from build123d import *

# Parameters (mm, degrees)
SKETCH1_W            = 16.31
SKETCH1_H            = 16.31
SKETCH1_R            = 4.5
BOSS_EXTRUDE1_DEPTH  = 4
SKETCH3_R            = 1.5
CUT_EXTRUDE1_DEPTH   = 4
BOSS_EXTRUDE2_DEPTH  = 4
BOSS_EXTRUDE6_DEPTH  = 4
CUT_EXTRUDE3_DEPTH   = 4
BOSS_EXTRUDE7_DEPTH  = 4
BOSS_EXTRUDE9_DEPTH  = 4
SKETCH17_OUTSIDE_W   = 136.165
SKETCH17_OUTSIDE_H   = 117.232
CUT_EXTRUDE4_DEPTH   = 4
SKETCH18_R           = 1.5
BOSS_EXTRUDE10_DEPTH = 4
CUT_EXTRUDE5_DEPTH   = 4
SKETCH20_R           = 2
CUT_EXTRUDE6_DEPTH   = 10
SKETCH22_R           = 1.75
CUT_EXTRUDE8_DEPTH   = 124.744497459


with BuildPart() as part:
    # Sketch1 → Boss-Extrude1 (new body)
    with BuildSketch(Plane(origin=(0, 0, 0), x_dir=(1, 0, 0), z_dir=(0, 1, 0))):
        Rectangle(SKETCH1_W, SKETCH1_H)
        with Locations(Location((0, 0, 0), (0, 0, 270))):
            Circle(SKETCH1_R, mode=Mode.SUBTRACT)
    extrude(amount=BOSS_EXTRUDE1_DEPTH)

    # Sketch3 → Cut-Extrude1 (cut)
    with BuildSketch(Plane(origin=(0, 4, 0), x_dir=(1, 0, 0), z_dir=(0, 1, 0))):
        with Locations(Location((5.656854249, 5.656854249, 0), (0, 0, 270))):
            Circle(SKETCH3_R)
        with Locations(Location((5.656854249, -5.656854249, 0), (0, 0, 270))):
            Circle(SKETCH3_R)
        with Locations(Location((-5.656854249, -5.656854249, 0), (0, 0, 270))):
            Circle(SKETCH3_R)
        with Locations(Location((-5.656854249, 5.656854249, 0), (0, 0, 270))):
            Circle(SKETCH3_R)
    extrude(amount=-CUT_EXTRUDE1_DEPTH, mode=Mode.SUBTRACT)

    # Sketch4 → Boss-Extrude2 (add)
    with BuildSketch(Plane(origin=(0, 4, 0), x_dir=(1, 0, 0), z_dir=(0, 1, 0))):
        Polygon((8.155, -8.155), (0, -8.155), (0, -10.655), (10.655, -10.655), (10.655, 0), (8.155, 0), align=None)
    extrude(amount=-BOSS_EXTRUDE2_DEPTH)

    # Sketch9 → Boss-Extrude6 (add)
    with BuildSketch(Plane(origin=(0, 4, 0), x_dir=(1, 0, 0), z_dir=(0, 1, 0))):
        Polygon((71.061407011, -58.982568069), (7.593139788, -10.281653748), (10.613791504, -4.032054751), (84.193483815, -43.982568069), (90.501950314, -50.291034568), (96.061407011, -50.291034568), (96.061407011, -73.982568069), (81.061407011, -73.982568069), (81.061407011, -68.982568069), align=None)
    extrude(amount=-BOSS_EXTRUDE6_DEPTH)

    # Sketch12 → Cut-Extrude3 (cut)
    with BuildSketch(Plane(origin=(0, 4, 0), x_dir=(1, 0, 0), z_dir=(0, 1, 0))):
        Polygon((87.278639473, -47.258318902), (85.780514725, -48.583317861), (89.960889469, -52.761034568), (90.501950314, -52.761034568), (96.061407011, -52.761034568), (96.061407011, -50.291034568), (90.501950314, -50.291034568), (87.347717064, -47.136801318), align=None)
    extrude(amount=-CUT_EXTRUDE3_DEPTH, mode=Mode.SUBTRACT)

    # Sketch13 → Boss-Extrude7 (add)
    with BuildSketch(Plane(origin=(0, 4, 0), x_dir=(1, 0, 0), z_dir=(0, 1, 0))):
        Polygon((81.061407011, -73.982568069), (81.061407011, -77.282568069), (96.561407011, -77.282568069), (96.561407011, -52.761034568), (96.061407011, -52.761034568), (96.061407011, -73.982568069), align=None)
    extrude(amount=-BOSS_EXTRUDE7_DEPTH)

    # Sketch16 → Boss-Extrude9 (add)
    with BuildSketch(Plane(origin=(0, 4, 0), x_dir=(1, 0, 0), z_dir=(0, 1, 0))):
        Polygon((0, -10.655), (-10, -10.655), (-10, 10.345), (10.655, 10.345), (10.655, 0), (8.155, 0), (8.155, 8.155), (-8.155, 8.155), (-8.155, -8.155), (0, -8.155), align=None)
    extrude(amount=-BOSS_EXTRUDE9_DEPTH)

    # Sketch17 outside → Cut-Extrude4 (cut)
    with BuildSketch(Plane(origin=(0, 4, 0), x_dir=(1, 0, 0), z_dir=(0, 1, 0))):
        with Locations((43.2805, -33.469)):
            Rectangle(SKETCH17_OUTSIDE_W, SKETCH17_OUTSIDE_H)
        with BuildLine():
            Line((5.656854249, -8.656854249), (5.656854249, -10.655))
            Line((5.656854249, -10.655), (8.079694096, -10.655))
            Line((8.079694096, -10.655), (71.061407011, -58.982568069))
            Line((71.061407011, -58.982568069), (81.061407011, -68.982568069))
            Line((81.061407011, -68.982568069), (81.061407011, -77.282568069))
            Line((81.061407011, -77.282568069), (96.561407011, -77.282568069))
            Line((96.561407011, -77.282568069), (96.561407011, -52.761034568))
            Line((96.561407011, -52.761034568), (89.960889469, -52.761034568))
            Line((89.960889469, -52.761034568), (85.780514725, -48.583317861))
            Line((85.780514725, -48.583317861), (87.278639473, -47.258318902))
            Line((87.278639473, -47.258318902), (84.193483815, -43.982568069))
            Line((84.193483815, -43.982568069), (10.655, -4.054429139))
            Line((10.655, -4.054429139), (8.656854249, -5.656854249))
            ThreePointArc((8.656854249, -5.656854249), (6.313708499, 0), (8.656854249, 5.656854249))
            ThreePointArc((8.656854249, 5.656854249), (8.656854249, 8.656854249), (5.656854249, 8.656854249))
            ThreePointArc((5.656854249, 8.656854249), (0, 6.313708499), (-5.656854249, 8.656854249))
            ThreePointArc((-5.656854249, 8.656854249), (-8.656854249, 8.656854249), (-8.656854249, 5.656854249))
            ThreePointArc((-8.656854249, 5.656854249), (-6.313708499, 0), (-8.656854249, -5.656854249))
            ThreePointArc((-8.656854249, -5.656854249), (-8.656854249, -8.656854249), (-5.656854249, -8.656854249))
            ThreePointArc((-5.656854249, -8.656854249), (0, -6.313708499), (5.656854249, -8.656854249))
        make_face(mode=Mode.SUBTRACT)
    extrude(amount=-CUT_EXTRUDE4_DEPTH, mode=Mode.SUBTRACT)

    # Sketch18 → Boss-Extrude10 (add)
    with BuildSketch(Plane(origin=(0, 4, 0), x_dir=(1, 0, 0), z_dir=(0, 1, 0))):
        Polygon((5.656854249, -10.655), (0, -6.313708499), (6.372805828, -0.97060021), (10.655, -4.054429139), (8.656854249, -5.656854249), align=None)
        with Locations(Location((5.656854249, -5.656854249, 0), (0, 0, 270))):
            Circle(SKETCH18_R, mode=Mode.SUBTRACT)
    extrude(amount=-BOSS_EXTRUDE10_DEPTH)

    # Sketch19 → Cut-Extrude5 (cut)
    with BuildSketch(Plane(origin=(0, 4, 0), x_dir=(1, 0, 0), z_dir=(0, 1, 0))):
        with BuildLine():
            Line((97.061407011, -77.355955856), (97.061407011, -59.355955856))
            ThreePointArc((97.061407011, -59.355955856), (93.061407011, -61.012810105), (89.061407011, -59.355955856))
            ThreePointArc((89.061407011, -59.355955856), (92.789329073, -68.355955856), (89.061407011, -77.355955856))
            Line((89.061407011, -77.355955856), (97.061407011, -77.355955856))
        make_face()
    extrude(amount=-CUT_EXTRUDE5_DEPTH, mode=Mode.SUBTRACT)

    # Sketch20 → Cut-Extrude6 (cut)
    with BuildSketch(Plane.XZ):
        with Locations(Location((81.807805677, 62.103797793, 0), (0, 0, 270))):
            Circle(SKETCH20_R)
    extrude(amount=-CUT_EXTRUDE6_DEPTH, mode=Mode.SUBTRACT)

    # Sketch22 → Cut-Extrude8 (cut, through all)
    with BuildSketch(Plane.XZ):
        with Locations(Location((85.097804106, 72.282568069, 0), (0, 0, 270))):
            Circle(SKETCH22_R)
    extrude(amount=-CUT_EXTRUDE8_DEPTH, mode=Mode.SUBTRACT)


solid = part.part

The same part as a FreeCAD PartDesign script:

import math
import FreeCAD as App
import Part
import Sketcher

V = App.Vector
Q = App.Units.Quantity


def add_polygon(sketch, points):
    """Adds a closed chain of lines whose ends are joined by coincident constraints."""
    first, n = sketch.GeometryCount, len(points)
    for a, b in zip(points, points[1:] + points[:1]):
        sketch.addGeometry(Part.LineSegment(App.Vector(*a, 0), App.Vector(*b, 0)), False)
    for i in range(n):
        sketch.addConstraint(Sketcher.Constraint("Coincident", first + i, 2, first + (i + 1) % n, 1))

doc = App.newDocument("Part")
body = doc.addObject("PartDesign::Body", "Body")

sketch1 = body.newObject("Sketcher::SketchObject", "Sketch")
sketch1.AttachmentSupport = (doc.getObject("XZ_Plane"), [""])
sketch1.MapMode = "FlatFace"
add_polygon(sketch1, [(-8.155, -8.155), (-8.155, 8.155), (8.155, 8.155), (8.155, -8.155)])
sketch1.addGeometry(Part.Circle(V(0, 0, 0), V(0, 0, 1), 4.5), False)
sketch1.addConstraint([
    Sketcher.Constraint("Vertical", 0),
    Sketcher.Constraint("Horizontal", 1),
    Sketcher.Constraint("Vertical", 2),
    Sketcher.Constraint("Horizontal", 3),
    Sketcher.Constraint("Coincident", 4, 3, -1, 1),
    Sketcher.Constraint("Symmetric", 0, 2, 2, 2, -1, 1),
    Sketcher.Constraint("Equal", 3, 0),
    Sketcher.Constraint("Diameter", 4, Q("9 mm")),
    Sketcher.Constraint("DistanceX", 1, 1, 1, 2, Q("16.31 mm")),
])
pad1 = body.newObject("PartDesign::Pad", "Pad")
pad1.Profile = sketch1
pad1.Length = 4
pad1.Reversed = True

sketch2 = body.newObject("Sketcher::SketchObject", "Sketch001")
sketch2.AttachmentSupport = (doc.getObject("XZ_Plane"), [""])
sketch2.MapMode = "FlatFace"
sketch2.AttachmentOffset = App.Placement(V(0, 0, -4), App.Rotation())
sketch2.addGeometry([
    Part.Circle(V(5.656854, -5.656854, 0), V(0, 0, 1), 1.5),
    Part.Circle(V(5.656854, 5.656854, 0), V(0, 0, 1), 1.5),
    Part.Circle(V(-5.656854, 5.656854, 0), V(0, 0, 1), 1.5),
    Part.Circle(V(-5.656854, -5.656854, 0), V(0, 0, 1), 1.5),
], False)
sketch2.addConstraint([
    Sketcher.Constraint("Equal", 0, 1),
    Sketcher.Constraint("Equal", 1, 2),
    Sketcher.Constraint("Equal", 2, 3),
    Sketcher.Constraint("Symmetric", 0, 3, 2, 3, -1, 1),
    Sketcher.Constraint("Symmetric", 1, 3, 3, 3, -1, 1),
    Sketcher.Constraint("Symmetric", 1, 3, 2, 3, -2),
    Sketcher.Constraint("Diameter", 0, Q("3 mm")),
    Sketcher.Constraint("DistanceY", 0, 3, 1, 3, Q("11.313708 mm")),
    Sketcher.Constraint("DistanceX", 2, 3, 1, 3, Q("11.313708 mm")),
])
pocket1 = body.newObject("PartDesign::Pocket", "Pocket")
pocket1.Profile = sketch2
pocket1.Length = 4
pocket1.Reversed = True

sketch3 = body.newObject("Sketcher::SketchObject", "Sketch002")
sketch3.AttachmentSupport = (doc.getObject("XZ_Plane"), [""])
sketch3.MapMode = "FlatFace"
sketch3.AttachmentOffset = App.Placement(V(0, 0, -4), App.Rotation())
add_polygon(sketch3, [(8.155, 8.155), (0, 8.155), (0, 10.655), (10.655, 10.655), (10.655, 0), (8.155, 0)])
sketch3.addConstraint([
    Sketcher.Constraint("Horizontal", 0),
    Sketcher.Constraint("Vertical", 1),
    Sketcher.Constraint("Horizontal", 2),
    Sketcher.Constraint("Vertical", 3),
    Sketcher.Constraint("Horizontal", 4),
    Sketcher.Constraint("Vertical", 5),
    Sketcher.Constraint("PointOnObject", 0, 2, -2),
    Sketcher.Constraint("PointOnObject", 3, 2, -1),
    Sketcher.Constraint("Equal", 4, 1),
    Sketcher.Constraint("Equal", 2, 3),
    Sketcher.Constraint("DistanceX", 4, 2, 4, 1, Q("2.5 mm")),
    Sketcher.Constraint("DistanceX", 0, 2, 0, 1, Q("8.155 mm")),
])
pad2 = body.newObject("PartDesign::Pad", "Pad001")
pad2.Profile = sketch3
pad2.Length = 4

sketch4 = body.newObject("Sketcher::SketchObject", "Sketch003")
sketch4.AttachmentSupport = (doc.getObject("XZ_Plane"), [""])
sketch4.MapMode = "FlatFace"
sketch4.AttachmentOffset = App.Placement(V(0, 0, -4), App.Rotation())
add_polygon(sketch4, [(7.59314, 10.281654), (71.061407, 58.982568), (81.061407, 68.982568), (81.061407, 73.982568), (96.061407, 73.982568), (96.061407, 50.291035), (90.50195, 50.291035), (84.193484, 43.982568), (10.613792, 4.032055)])
sketch4.addConstraint([
    Sketcher.Constraint("Vertical", 2),
    Sketcher.Constraint("Horizontal", 3),
    Sketcher.Constraint("Vertical", 4),
    Sketcher.Constraint("Horizontal", 5),
    Sketcher.Constraint("Parallel", 1, 6),
    Sketcher.Constraint("DistanceX", 3, 1, 3, 2, Q("15 mm")),
    Sketcher.Constraint("DistanceY", 2, 1, 2, 2, Q("5 mm")),
    Sketcher.Constraint("Angle", 1, Q("45 deg")),
    Sketcher.Constraint("Distance", 0, Q("80 mm")),
    Sketcher.Constraint("Angle", 0, Q("37.5 deg")),
    Sketcher.Constraint("Angle", 7, Q("-151.5 deg")),
    Sketcher.Constraint("DistanceX", 0, 2, 1, 2, Q("10 mm")),
    Sketcher.Constraint("DistanceY", 6, 2, 0, 2, Q("15 mm")),
    Sketcher.Constraint("DistanceY", 7, 2, 8, 2, Q("6.249599 mm")),
    Sketcher.Constraint("Distance", 6, Q("8.921519 mm")),
    Sketcher.Constraint("DistanceX", 5, 2, 5, 1, Q("5.559457 mm")),
    Sketcher.Constraint("DistanceY", -1, 1, 0, 2, Q("58.982568 mm")),
    Sketcher.Constraint("DistanceX", -1, 1, 5, 2, Q("90.50195 mm")),
])
pad3 = body.newObject("PartDesign::Pad", "Pad002")
pad3.Profile = sketch4
pad3.Length = 4

sketch5 = body.newObject("Sketcher::SketchObject", "Sketch004")
sketch5.AttachmentSupport = (doc.getObject("XZ_Plane"), [""])
sketch5.MapMode = "FlatFace"
sketch5.AttachmentOffset = App.Placement(V(0, 0, -4), App.Rotation())
add_polygon(sketch5, [(87.278639, 47.258319), (85.780515, 48.583318), (89.960889, 52.761035), (96.061407, 52.761035), (96.061407, 50.291035), (90.50195, 50.291035), (87.347717, 47.136801)])
sketch5.addConstraint([
    Sketcher.Constraint("Horizontal", 2),
    Sketcher.Constraint("Vertical", 3),
    Sketcher.Constraint("Horizontal", 4),
    Sketcher.Constraint("Angle", 5, Q("-135 deg")),
    Sketcher.Constraint("Distance", 0, Q("2 mm")),
    Sketcher.Constraint("DistanceY", 3, 2, 3, 1, Q("2.47 mm")),
    Sketcher.Constraint("DistanceY", 6, 2, 0, 2, Q("1.324999 mm")),
    Sketcher.Constraint("DistanceY", -1, 1, 5, 2, Q("47.136801 mm")),
    Sketcher.Constraint("Distance", 5, Q("4.460759 mm")),
    Sketcher.Constraint("Distance", 6, Q("0.139779 mm")),
    Sketcher.Constraint("DistanceX", 2, 1, 2, 2, Q("6.100518 mm")),
    Sketcher.Constraint("DistanceX", 4, 2, 4, 1, Q("5.559457 mm")),
    Sketcher.Constraint("DistanceX", -1, 1, 1, 2, Q("89.960889 mm")),
    Sketcher.Constraint("DistanceX", -1, 1, 6, 2, Q("87.278639 mm")),
])
pocket2 = body.newObject("PartDesign::Pocket", "Pocket001")
pocket2.Profile = sketch5
pocket2.Length = 4
pocket2.Reversed = True

sketch6 = body.newObject("Sketcher::SketchObject", "Sketch005")
sketch6.AttachmentSupport = (doc.getObject("XZ_Plane"), [""])
sketch6.MapMode = "FlatFace"
sketch6.AttachmentOffset = App.Placement(V(0, 0, -4), App.Rotation())
add_polygon(sketch6, [(81.061407, 73.982568), (81.061407, 77.282568), (96.561407, 77.282568), (96.561407, 52.761035), (96.061407, 52.761035), (96.061407, 73.982568)])
sketch6.addConstraint([
    Sketcher.Constraint("Vertical", 0),
    Sketcher.Constraint("Horizontal", 1),
    Sketcher.Constraint("Vertical", 2),
    Sketcher.Constraint("Horizontal", 3),
    Sketcher.Constraint("Vertical", 4),
    Sketcher.Constraint("Horizontal", 5),
    Sketcher.Constraint("DistanceX", 5, 2, 5, 1, Q("15 mm")),
    Sketcher.Constraint("DistanceX", 1, 1, 1, 2, Q("15.5 mm")),
    Sketcher.Constraint("DistanceY", 0, 1, 0, 2, Q("3.3 mm")),
    Sketcher.Constraint("DistanceY", 2, 2, 2, 1, Q("24.521534 mm")),
    Sketcher.Constraint("DistanceY", -1, 1, 0, 2, Q("77.282568 mm")),
    Sketcher.Constraint("DistanceX", -1, 1, 0, 2, Q("81.061407 mm")),
])
pad4 = body.newObject("PartDesign::Pad", "Pad003")
pad4.Profile = sketch6
pad4.Length = 4

sketch7 = body.newObject("Sketcher::SketchObject", "Sketch006")
sketch7.AttachmentSupport = (doc.getObject("XZ_Plane"), [""])
sketch7.MapMode = "FlatFace"
sketch7.AttachmentOffset = App.Placement(V(0, 0, -4), App.Rotation())
add_polygon(sketch7, [(-10, 10.655), (0, 10.655), (0, 8.155), (-8.155, 8.155), (-8.155, -8.155), (8.155, -8.155), (8.155, 0), (10.655, 0), (10.655, -10.345), (-10, -10.345)])
sketch7.addConstraint([
    Sketcher.Constraint("Horizontal", 0),
    Sketcher.Constraint("Vertical", 1),
    Sketcher.Constraint("Horizontal", 2),
    Sketcher.Constraint("Vertical", 3),
    Sketcher.Constraint("Horizontal", 4),
    Sketcher.Constraint("Vertical", 5),
    Sketcher.Constraint("Horizontal", 6),
    Sketcher.Constraint("Vertical", 7),
    Sketcher.Constraint("Horizontal", 8),
    Sketcher.Constraint("Vertical", 9),
    Sketcher.Constraint("Symmetric", 2, 2, 4, 2, -1, 1),
    Sketcher.Constraint("PointOnObject", 0, 2, -2),
    Sketcher.Constraint("PointOnObject", 5, 2, -1),
    Sketcher.Constraint("Equal", 6, 1),
    Sketcher.Constraint("Equal", 4, 3),
    Sketcher.Constraint("DistanceX", 0, 1, 0, 2, Q("10 mm")),
    Sketcher.Constraint("DistanceY", 9, 1, 9, 2, Q("21 mm")),
    Sketcher.Constraint("DistanceX", 6, 1, 6, 2, Q("2.5 mm")),
    Sketcher.Constraint("DistanceX", 4, 1, 4, 2, Q("16.31 mm")),
])
pad5 = body.newObject("PartDesign::Pad", "Pad004")
pad5.Profile = sketch7
pad5.Length = 4

sketch8 = body.newObject("Sketcher::SketchObject", "Sketch007")
sketch8.AttachmentSupport = (doc.getObject("XZ_Plane"), [""])
sketch8.MapMode = "FlatFace"
sketch8.AttachmentOffset = App.Placement(V(0, 0, -4), App.Rotation())
add_polygon(sketch8, [(-24.802, -25.147), (-24.802, 92.085), (111.363, 92.085), (111.363, -25.147)])
sketch8.addGeometry(Part.LineSegment(V(5.656854, 10.655, 0), V(5.656854, 8.656854, 0)), False)
sketch8.addGeometry(Part.ArcOfCircle(Part.Circle(V(0, 14.313708, 0), V(0, 0, 1), 8), math.radians(-135), math.radians(-45)), False)
sketch8.addGeometry(Part.ArcOfCircle(Part.Circle(V(-7.156854, 7.156854, 0), V(0, 0, 1), 2.12132), math.radians(45), math.radians(225)), False)
sketch8.addGeometry(Part.ArcOfCircle(Part.Circle(V(-14.313708, 0, 0), V(0, 0, 1), 8), math.radians(-45), math.radians(45)), False)
sketch8.addGeometry(Part.ArcOfCircle(Part.Circle(V(-7.156854, -7.156854, 0), V(0, 0, 1), 2.12132), math.radians(135), math.radians(315)), False)
sketch8.addGeometry(Part.ArcOfCircle(Part.Circle(V(0, -14.313708, 0), V(0, 0, 1), 8), math.radians(45), math.radians(135)), False)
sketch8.addGeometry(Part.ArcOfCircle(Part.Circle(V(7.156854, -7.156854, 0), V(0, 0, 1), 2.12132), math.radians(-135), math.radians(45)), False)
sketch8.addGeometry(Part.ArcOfCircle(Part.Circle(V(14.313708, 0, 0), V(0, 0, 1), 8), math.radians(135), math.radians(225)), False)
sketch8.addGeometry(Part.LineSegment(V(8.656854, 5.656854, 0), V(10.655, 4.054429, 0)), False)
sketch8.addGeometry(Part.LineSegment(V(10.655, 4.054429, 0), V(84.193484, 43.982568, 0)), False)
sketch8.addGeometry(Part.LineSegment(V(84.193484, 43.982568, 0), V(87.278639, 47.258319, 0)), False)
sketch8.addGeometry(Part.LineSegment(V(87.278639, 47.258319, 0), V(85.780515, 48.583318, 0)), False)
sketch8.addGeometry(Part.LineSegment(V(85.780515, 48.583318, 0), V(89.960889, 52.761035, 0)), False)
sketch8.addGeometry(Part.LineSegment(V(89.960889, 52.761035, 0), V(96.561407, 52.761035, 0)), False)
sketch8.addGeometry(Part.LineSegment(V(96.561407, 52.761035, 0), V(96.561407, 77.282568, 0)), False)
sketch8.addGeometry(Part.LineSegment(V(96.561407, 77.282568, 0), V(81.061407, 77.282568, 0)), False)
sketch8.addGeometry(Part.LineSegment(V(81.061407, 77.282568, 0), V(81.061407, 68.982568, 0)), False)
sketch8.addGeometry(Part.LineSegment(V(81.061407, 68.982568, 0), V(71.061407, 58.982568, 0)), False)
sketch8.addGeometry(Part.LineSegment(V(71.061407, 58.982568, 0), V(8.079694, 10.655, 0)), False)
sketch8.addGeometry(Part.LineSegment(V(8.079694, 10.655, 0), V(5.656854, 10.655, 0)), False)
sketch8.addConstraint([
    Sketcher.Constraint("Coincident", 4, 2, 5, 2),
    Sketcher.Constraint("Tangent", 5, 1, 6, 1),
    Sketcher.Constraint("Tangent", 6, 2, 7, 2),
    Sketcher.Constraint("Tangent", 7, 1, 8, 1),
    Sketcher.Constraint("Tangent", 8, 2, 9, 2),
    Sketcher.Constraint("Tangent", 9, 1, 10, 1),
    Sketcher.Constraint("Tangent", 10, 2, 11, 2),
    Sketcher.Constraint("Coincident", 11, 1, 12, 1),
    Sketcher.Constraint("Coincident", 12, 2, 13, 1),
    Sketcher.Constraint("Coincident", 13, 2, 14, 1),
    Sketcher.Constraint("Coincident", 14, 2, 15, 1),
    Sketcher.Constraint("Coincident", 15, 2, 16, 1),
    Sketcher.Constraint("Coincident", 16, 2, 17, 1),
    Sketcher.Constraint("Coincident", 17, 2, 18, 1),
    Sketcher.Constraint("Coincident", 18, 2, 19, 1),
    Sketcher.Constraint("Coincident", 19, 2, 20, 1),
    Sketcher.Constraint("Coincident", 20, 2, 21, 1),
    Sketcher.Constraint("Coincident", 21, 2, 22, 1),
    Sketcher.Constraint("Coincident", 22, 2, 23, 1),
    Sketcher.Constraint("Coincident", 23, 2, 4, 1),
    Sketcher.Constraint("Vertical", 0),
    Sketcher.Constraint("Horizontal", 1),
    Sketcher.Constraint("Vertical", 2),
    Sketcher.Constraint("Horizontal", 3),
    Sketcher.Constraint("Vertical", 4),
    Sketcher.Constraint("Horizontal", 17),
    Sketcher.Constraint("Vertical", 18),
    Sketcher.Constraint("Horizontal", 19),
    Sketcher.Constraint("Vertical", 20),
    Sketcher.Constraint("Horizontal", 23),
    Sketcher.Constraint("Equal", 5, 7),
    Sketcher.Constraint("Equal", 6, 8),
    Sketcher.Constraint("Equal", 7, 9),
    Sketcher.Constraint("Equal", 8, 10),
    Sketcher.Constraint("Equal", 9, 11),
    Sketcher.Constraint("Symmetric", 5, 3, 9, 3, -1, 1),
    Sketcher.Constraint("Symmetric", 7, 1, 11, 1, -1, 1),
    Sketcher.Constraint("Symmetric", 8, 3, 10, 3, -2),
    Sketcher.Constraint("Horizontal", 4, 2, 5, 1),
    Sketcher.Constraint("Horizontal", 6, 2, 11, 1),
    Sketcher.Constraint("Radius", 5, Q("8 mm")),
    Sketcher.Constraint("Angle", 21, Q("-135 deg")),
    Sketcher.Constraint("Distance", 15, Q("2 mm")),
    Sketcher.Constraint("DistanceX", 19, 2, 19, 1, Q("15.5 mm")),
    Sketcher.Constraint("DistanceY", 20, 2, 20, 1, Q("8.3 mm")),
    Sketcher.Constraint("Angle", 13, Q("28.5 deg")),
    Sketcher.Constraint("Angle", 22, Q("-142.5 deg")),
    Sketcher.Constraint("DistanceX", 6, 2, 5, 1, Q("3 mm")),
    Sketcher.Constraint("DistanceY", 6, 2, 5, 1, Q("3 mm")),
    Sketcher.Constraint("DistanceX", 21, 2, 20, 2, Q("10 mm")),
    Sketcher.Constraint("DistanceY", 13, 2, 21, 2, Q("15 mm")),
    Sketcher.Constraint("DistanceY", 6, 3, 4, 2, Q("1.5 mm")),
    Sketcher.Constraint("DistanceX", 1, 1, 1, 2, Q("136.165 mm")),
    Sketcher.Constraint("DistanceY", 0, 1, 0, 2, Q("117.232 mm")),
    Sketcher.Constraint("DistanceX", 0, 2, -1, 1, Q("24.802 mm")),
    Sketcher.Constraint("DistanceY", -1, 1, 0, 2, Q("92.085 mm")),
    Sketcher.Constraint("DistanceX", -1, 1, 12, 2, Q("10.655 mm")),
    Sketcher.Constraint("DistanceY", -1, 1, 22, 2, Q("10.655 mm")),
    Sketcher.Constraint("DistanceY", 14, 2, 15, 2, Q("1.324999 mm")),
    Sketcher.Constraint("DistanceX", 23, 2, 23, 1, Q("2.42284 mm")),
    Sketcher.Constraint("Distance", 12, Q("2.561319 mm")),
    Sketcher.Constraint("Distance", 13, Q("83.678939 mm")),
    Sketcher.Constraint("Distance", 14, Q("4.499859 mm")),
    Sketcher.Constraint("DistanceX", 17, 1, 17, 2, Q("6.600518 mm")),
    Sketcher.Constraint("DistanceY", 18, 1, 18, 2, Q("24.521534 mm")),
    Sketcher.Constraint("DistanceX", -1, 1, 14, 2, Q("87.278639 mm")),
])
pocket3 = body.newObject("PartDesign::Pocket", "Pocket002")
pocket3.Profile = sketch8
pocket3.Length = 4
pocket3.Reversed = True

sketch9 = body.newObject("Sketcher::SketchObject", "Sketch008")
sketch9.AttachmentSupport = (doc.getObject("XZ_Plane"), [""])
sketch9.MapMode = "FlatFace"
sketch9.AttachmentOffset = App.Placement(V(0, 0, -4), App.Rotation())
add_polygon(sketch9, [(0, 6.313708), (5.656854, 10.655), (8.656854, 5.656854), (10.655, 4.054429), (6.372806, 0.9706)])
sketch9.addGeometry(Part.Circle(V(5.656854, 5.656854, 0), V(0, 0, 1), 1.5), False)
sketch9.addConstraint([
    Sketcher.Constraint("PointOnObject", 4, 2, -2),
    Sketcher.Constraint("Horizontal", 5, 3, 1, 2),
    Sketcher.Constraint("Vertical", 5, 3, 0, 2),
    Sketcher.Constraint("Diameter", 5, Q("3 mm")),
    Sketcher.Constraint("DistanceX", 5, 3, 1, 2, Q("3 mm")),
    Sketcher.Constraint("DistanceY", -1, 1, 0, 2, Q("10.655 mm")),
    Sketcher.Constraint("DistanceX", -1, 1, 2, 2, Q("10.655 mm")),
    Sketcher.Constraint("DistanceY", -1, 1, 3, 2, Q("0.9706 mm")),
    Sketcher.Constraint("Distance", 1, Q("5.829362 mm")),
    Sketcher.Constraint("Distance", 2, Q("2.561319 mm")),
    Sketcher.Constraint("DistanceY", -1, 1, 2, 2, Q("4.054429 mm")),
    Sketcher.Constraint("DistanceY", -1, 1, 4, 2, Q("6.313708 mm")),
    Sketcher.Constraint("DistanceX", 5, 3, 3, 2, Q("0.715952 mm")),
])
pad6 = body.newObject("PartDesign::Pad", "Pad005")
pad6.Profile = sketch9
pad6.Length = 4

sketch10 = body.newObject("Sketcher::SketchObject", "Sketch009")
sketch10.AttachmentSupport = (doc.getObject("XZ_Plane"), [""])
sketch10.MapMode = "FlatFace"
sketch10.AttachmentOffset = App.Placement(V(0, 0, -4), App.Rotation())
sketch10.addGeometry([
    Part.LineSegment(V(97.061407, 77.355956, 0), V(97.061407, 59.355956, 0)),
    Part.ArcOfCircle(Part.Circle(V(93.061407, 55.355956, 0), V(0, 0, 1), 5.656854), math.radians(45), math.radians(135)),
    Part.ArcOfCircle(Part.Circle(V(80.061407, 68.355956, 0), V(0, 0, 1), 12.727922), math.radians(-45), math.radians(45)),
    Part.LineSegment(V(89.061407, 77.355956, 0), V(97.061407, 77.355956, 0)),
], False)
sketch10.addConstraint([
    Sketcher.Constraint("Coincident", 0, 2, 1, 1),
    Sketcher.Constraint("Tangent", 1, 2, 2, 1),
    Sketcher.Constraint("Coincident", 2, 2, 3, 1),
    Sketcher.Constraint("Coincident", 3, 2, 0, 1),
    Sketcher.Constraint("Vertical", 0),
    Sketcher.Constraint("Horizontal", 3),
    Sketcher.Constraint("Horizontal", 0, 2, 1, 2),
    Sketcher.Constraint("Vertical", 1, 2, 2, 2),
    Sketcher.Constraint("DistanceX", 3, 1, 3, 2, Q("8 mm")),
    Sketcher.Constraint("DistanceY", 0, 2, 0, 1, Q("18 mm")),
    Sketcher.Constraint("DistanceX", 2, 3, 1, 3, Q("13 mm")),
    Sketcher.Constraint("DistanceX", -1, 1, 1, 3, Q("93.061407 mm")),
    Sketcher.Constraint("DistanceY", -1, 1, 1, 3, Q("55.355956 mm")),
])
pocket4 = body.newObject("PartDesign::Pocket", "Pocket003")
pocket4.Profile = sketch10
pocket4.Length = 4
pocket4.Reversed = True

sketch11 = body.newObject("Sketcher::SketchObject", "Sketch010")
sketch11.AttachmentSupport = (doc.getObject("XZ_Plane"), [""])
sketch11.MapMode = "FlatFace"
sketch11.addGeometry(Part.Circle(V(81.807806, 62.103798, 0), V(0, 0, 1), 2), False)
sketch11.addConstraint([
    Sketcher.Constraint("Diameter", 0, Q("4 mm")),
    Sketcher.Constraint("DistanceX", -1, 1, 0, 3, Q("81.807806 mm")),
    Sketcher.Constraint("DistanceY", -1, 1, 0, 3, Q("62.103798 mm")),
])
pocket5 = body.newObject("PartDesign::Pocket", "Pocket004")
pocket5.Profile = sketch11
pocket5.Length = 10

sketch12 = body.newObject("Sketcher::SketchObject", "Sketch011")
sketch12.AttachmentSupport = (doc.getObject("XZ_Plane"), [""])
sketch12.MapMode = "FlatFace"
sketch12.addGeometry(Part.Circle(V(85.097804, 72.282568, 0), V(0, 0, 1), 1.75), False)
sketch12.addConstraint([
    Sketcher.Constraint("Diameter", 0, Q("3.5 mm")),
    Sketcher.Constraint("DistanceY", -1, 1, 0, 3, Q("72.282568 mm")),
    Sketcher.Constraint("DistanceX", -1, 1, 0, 3, Q("85.097804 mm")),
])
pocket6 = body.newObject("PartDesign::Pocket", "Pocket005")
pocket6.Profile = sketch12
pocket6.Type = "ThroughAll"

doc.recompute()
